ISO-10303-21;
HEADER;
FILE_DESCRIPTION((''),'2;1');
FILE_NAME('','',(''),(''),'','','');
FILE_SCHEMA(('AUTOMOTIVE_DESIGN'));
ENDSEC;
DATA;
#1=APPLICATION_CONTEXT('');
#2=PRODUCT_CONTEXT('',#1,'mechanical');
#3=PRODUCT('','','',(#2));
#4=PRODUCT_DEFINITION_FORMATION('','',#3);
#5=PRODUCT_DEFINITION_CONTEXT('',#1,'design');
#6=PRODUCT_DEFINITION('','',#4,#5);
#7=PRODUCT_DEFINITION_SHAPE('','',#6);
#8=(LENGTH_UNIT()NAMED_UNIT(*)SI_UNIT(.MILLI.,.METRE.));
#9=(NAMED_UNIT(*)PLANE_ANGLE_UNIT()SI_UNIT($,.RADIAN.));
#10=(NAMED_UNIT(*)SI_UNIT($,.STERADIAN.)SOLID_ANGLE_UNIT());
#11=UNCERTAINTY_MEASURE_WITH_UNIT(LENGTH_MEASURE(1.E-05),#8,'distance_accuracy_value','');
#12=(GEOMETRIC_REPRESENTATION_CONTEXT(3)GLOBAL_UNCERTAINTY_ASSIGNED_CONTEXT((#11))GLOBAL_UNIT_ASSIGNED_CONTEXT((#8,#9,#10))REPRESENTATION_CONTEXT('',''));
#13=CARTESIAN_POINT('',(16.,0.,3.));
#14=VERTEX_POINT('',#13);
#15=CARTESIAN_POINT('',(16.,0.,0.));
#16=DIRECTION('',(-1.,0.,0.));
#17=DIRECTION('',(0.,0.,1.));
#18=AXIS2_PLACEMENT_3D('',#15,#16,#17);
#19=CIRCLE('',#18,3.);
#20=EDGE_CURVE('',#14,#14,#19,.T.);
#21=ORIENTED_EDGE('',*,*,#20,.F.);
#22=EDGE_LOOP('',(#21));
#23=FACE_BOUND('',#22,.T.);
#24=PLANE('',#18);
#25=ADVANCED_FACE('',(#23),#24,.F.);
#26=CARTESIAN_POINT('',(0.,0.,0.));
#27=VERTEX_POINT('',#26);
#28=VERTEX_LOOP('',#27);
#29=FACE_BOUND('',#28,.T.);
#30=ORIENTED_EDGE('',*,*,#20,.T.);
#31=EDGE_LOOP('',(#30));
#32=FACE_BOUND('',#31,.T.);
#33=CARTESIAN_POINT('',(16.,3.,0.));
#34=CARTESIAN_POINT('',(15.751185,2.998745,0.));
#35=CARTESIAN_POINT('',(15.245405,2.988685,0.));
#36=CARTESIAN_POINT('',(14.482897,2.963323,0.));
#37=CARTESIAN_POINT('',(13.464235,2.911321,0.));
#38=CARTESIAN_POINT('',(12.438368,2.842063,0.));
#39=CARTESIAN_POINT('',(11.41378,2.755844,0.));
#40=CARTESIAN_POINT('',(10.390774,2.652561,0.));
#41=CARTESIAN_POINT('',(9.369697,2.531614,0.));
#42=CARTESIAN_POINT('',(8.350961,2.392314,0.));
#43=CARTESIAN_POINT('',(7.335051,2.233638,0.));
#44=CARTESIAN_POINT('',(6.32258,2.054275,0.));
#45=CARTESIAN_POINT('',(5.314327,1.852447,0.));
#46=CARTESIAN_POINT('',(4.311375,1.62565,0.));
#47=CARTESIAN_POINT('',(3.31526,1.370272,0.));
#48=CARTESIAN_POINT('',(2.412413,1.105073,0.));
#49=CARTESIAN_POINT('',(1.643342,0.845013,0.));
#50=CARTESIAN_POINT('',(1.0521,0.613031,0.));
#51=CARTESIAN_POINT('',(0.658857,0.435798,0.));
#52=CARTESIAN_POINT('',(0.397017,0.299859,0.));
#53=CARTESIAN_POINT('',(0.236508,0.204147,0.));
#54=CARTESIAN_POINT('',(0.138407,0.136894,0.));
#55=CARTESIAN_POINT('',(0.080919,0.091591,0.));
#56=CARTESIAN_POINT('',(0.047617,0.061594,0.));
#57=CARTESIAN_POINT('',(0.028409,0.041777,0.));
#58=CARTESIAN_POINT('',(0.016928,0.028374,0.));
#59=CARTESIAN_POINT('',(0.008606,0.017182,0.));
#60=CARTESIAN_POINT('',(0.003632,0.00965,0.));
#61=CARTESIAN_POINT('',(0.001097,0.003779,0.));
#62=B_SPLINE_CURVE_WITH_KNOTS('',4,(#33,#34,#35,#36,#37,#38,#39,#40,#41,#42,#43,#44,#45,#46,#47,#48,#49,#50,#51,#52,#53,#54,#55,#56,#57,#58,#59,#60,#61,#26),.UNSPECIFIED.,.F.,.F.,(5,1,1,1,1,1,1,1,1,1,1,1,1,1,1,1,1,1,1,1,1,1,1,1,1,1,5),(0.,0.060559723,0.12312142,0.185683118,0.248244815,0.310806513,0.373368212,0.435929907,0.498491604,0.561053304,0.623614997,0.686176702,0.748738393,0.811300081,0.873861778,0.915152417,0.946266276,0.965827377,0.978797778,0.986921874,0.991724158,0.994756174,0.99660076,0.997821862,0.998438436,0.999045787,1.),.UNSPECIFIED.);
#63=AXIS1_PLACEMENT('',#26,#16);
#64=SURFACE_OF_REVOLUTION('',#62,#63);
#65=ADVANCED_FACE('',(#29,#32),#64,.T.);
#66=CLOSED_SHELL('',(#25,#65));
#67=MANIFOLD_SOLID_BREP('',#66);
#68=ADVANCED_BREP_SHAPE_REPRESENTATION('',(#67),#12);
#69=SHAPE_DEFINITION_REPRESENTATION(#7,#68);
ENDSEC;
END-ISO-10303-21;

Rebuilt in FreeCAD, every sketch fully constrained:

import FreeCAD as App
import Part
import Sketcher

doc = App.newDocument("Part")
body = doc.addObject("PartDesign::Body", "Body")

sketch1 = body.newObject("Sketcher::SketchObject", "Sketch")
sketch1.AttachmentSupport = (doc.getObject("XY_Plane"), [""])
sketch1.MapMode = "FlatFace"
sketch1.addGeometry([
    Part.LineSegment(App.Vector(0, 0, 0), App.Vector(16, 0, 0)),
    Part.LineSegment(App.Vector(16, 0, 0), App.Vector(16, 3, 0)),
    Part.BSplineCurve([App.Vector(0, 0, 0), App.Vector(0.001097, 0.003779, 0), App.Vector(0.003632, 0.00965, 0), App.Vector(0.008606, 0.017182, 0), App.Vector(0.016928, 0.028374, 0), App.Vector(0.028409, 0.041777, 0), App.Vector(0.047617, 0.061594, 0), App.Vector(0.080919, 0.091591, 0), App.Vector(0.138407, 0.136894, 0), App.Vector(0.236508, 0.204147, 0), App.Vector(0.397017, 0.299859, 0), App.Vector(0.658857, 0.435798, 0), App.Vector(1.0521, 0.613031, 0), App.Vector(1.643342, 0.845013, 0), App.Vector(2.412413, 1.105073, 0), App.Vector(3.31526, 1.370272, 0), App.Vector(4.311375, 1.62565, 0), App.Vector(5.314327, 1.852447, 0), App.Vector(6.32258, 2.054275, 0), App.Vector(7.335051, 2.233638, 0), App.Vector(8.350961, 2.392314, 0), App.Vector(9.369697, 2.531614, 0), App.Vector(10.390774, 2.652561, 0), App.Vector(11.41378, 2.755844, 0), App.Vector(12.438368, 2.842063, 0), App.Vector(13.464235, 2.911321, 0), App.Vector(14.482897, 2.963323, 0), App.Vector(15.245405, 2.988685, 0), App.Vector(15.751185, 2.998745, 0), App.Vector(16, 3, 0)], [5, 1, 1, 1, 1, 1, 1, 1, 1, 1, 1, 1, 1, 1, 1, 1, 1, 1, 1, 1, 1, 1, 1, 1, 1, 1, 5], [0, 0.000954213, 0.001561564, 0.002178138, 0.00339924, 0.005243826, 0.008275842, 0.013078126, 0.021202222, 0.034172623, 0.053733724, 0.084847583, 0.126138222, 0.188699919, 0.251261607, 0.313823298, 0.376385003, 0.438946696, 0.501508396, 0.564070093, 0.626631788, 0.689193487, 0.751755185, 0.814316882, 0.87687858, 0.939440277, 1], False, 4, [1, 1, 1, 1, 1, 1, 1, 1, 1, 1, 1, 1, 1, 1, 1, 1, 1, 1, 1, 1, 1, 1, 1, 1, 1, 1, 1, 1, 1, 1], False),
], False)
sketch1.addConstraint([
    Sketcher.Constraint("Block", 2),
    Sketcher.Constraint("Coincident", 0, 2, 1, 1),
    Sketcher.Constraint("Coincident", 1, 2, 2, 2),
    Sketcher.Constraint("Coincident", 2, 1, 0, 1),
    Sketcher.Constraint("Horizontal", 0),
    Sketcher.Constraint("Vertical", 1),
])
revolution = body.newObject("PartDesign::Revolution", "Revolution")
revolution.Profile = sketch1
revolution.ReferenceAxis = (sketch1, ["H_Axis"])
revolution.Angle = 360

doc.recompute()
